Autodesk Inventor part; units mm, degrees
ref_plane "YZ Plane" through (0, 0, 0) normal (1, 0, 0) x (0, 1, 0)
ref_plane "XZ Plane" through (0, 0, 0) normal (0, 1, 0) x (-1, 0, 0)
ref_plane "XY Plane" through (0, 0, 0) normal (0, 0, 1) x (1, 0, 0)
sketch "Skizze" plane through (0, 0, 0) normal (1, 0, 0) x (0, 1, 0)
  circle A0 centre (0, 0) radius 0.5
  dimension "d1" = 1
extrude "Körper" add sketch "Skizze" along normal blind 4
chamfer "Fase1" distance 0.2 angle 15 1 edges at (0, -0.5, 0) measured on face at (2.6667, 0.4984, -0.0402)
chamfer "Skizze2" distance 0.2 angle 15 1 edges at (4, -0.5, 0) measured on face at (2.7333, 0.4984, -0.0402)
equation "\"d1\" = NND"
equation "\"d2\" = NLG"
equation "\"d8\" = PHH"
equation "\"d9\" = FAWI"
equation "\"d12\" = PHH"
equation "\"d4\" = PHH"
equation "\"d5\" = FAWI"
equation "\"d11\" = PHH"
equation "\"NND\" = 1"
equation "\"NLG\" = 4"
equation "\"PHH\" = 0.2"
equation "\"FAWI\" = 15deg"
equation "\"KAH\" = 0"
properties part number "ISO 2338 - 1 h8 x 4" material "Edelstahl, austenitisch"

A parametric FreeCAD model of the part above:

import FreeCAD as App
import Part
import Sketcher


def edges_at(feature, points):
    """Names of the edges that pass closest to the given points."""
    edges = feature.Shape.Edges
    near = lambda p: min(range(len(edges)), key=lambda i: edges[i].distToShape(Part.Vertex(*p))[0])
    return sorted({f"Edge{near(p) + 1}" for p in points})

doc = App.newDocument("Part")
params = doc.addObject("Spreadsheet::Sheet", "Params")
for row, (alias, value) in enumerate([
    ("sketch1_diameter", "1 mm"),
    ("pad1_length", "4 mm"),
    ("chamfer_size", "0.2 mm"),
    ("chamfer2_size", "0.2 mm"),
], start=1):
    params.set(f"A{row}", alias)
    params.set(f"B{row}", "=" + value)
    params.setAlias(f"B{row}", alias)

body = doc.addObject("PartDesign::Body", "Body")

sketch1 = doc.addObject("Sketcher::SketchObject", "Sketch")
body.addObject(sketch1)
sketch1.AttachmentSupport = (doc.YZ_Plane, [""])
sketch1.MapMode = "FlatFace"
sketch1.addGeometry(Part.Circle(App.Vector(0, 0, 0), App.Vector(0, 0, 1), 0.5), False)
sketch1.addConstraint(Sketcher.Constraint("Coincident", 0, 3, -1, 1))
sketch1.addConstraint(Sketcher.Constraint("Diameter", 0, 1.0))
sketch1.setExpression("Constraints[1]", "Params.sketch1_diameter")
pad1 = doc.addObject("PartDesign::Pad", "Pad")
body.addObject(pad1)
pad1.Profile = sketch1
pad1.setExpression("Length", "Params.pad1_length")
doc.recompute()

chamfer = doc.addObject("PartDesign::Chamfer", "Chamfer")
body.addObject(chamfer)
chamfer.Base = (pad1, edges_at(pad1, [(0, -0.5, 0)]))
chamfer.ChamferType = "Distance and Angle"
chamfer.setExpression("Size", "Params.chamfer_size")
chamfer.Angle = 15
doc.recompute()

chamfer2 = doc.addObject("PartDesign::Chamfer", "Chamfer001")
body.addObject(chamfer2)
chamfer2.Base = (chamfer, edges_at(chamfer, [(4, -0.5, 0)]))
chamfer2.ChamferType = "Distance and Angle"
chamfer2.setExpression("Size", "Params.chamfer2_size")
chamfer2.Angle = 15

doc.recompute()
